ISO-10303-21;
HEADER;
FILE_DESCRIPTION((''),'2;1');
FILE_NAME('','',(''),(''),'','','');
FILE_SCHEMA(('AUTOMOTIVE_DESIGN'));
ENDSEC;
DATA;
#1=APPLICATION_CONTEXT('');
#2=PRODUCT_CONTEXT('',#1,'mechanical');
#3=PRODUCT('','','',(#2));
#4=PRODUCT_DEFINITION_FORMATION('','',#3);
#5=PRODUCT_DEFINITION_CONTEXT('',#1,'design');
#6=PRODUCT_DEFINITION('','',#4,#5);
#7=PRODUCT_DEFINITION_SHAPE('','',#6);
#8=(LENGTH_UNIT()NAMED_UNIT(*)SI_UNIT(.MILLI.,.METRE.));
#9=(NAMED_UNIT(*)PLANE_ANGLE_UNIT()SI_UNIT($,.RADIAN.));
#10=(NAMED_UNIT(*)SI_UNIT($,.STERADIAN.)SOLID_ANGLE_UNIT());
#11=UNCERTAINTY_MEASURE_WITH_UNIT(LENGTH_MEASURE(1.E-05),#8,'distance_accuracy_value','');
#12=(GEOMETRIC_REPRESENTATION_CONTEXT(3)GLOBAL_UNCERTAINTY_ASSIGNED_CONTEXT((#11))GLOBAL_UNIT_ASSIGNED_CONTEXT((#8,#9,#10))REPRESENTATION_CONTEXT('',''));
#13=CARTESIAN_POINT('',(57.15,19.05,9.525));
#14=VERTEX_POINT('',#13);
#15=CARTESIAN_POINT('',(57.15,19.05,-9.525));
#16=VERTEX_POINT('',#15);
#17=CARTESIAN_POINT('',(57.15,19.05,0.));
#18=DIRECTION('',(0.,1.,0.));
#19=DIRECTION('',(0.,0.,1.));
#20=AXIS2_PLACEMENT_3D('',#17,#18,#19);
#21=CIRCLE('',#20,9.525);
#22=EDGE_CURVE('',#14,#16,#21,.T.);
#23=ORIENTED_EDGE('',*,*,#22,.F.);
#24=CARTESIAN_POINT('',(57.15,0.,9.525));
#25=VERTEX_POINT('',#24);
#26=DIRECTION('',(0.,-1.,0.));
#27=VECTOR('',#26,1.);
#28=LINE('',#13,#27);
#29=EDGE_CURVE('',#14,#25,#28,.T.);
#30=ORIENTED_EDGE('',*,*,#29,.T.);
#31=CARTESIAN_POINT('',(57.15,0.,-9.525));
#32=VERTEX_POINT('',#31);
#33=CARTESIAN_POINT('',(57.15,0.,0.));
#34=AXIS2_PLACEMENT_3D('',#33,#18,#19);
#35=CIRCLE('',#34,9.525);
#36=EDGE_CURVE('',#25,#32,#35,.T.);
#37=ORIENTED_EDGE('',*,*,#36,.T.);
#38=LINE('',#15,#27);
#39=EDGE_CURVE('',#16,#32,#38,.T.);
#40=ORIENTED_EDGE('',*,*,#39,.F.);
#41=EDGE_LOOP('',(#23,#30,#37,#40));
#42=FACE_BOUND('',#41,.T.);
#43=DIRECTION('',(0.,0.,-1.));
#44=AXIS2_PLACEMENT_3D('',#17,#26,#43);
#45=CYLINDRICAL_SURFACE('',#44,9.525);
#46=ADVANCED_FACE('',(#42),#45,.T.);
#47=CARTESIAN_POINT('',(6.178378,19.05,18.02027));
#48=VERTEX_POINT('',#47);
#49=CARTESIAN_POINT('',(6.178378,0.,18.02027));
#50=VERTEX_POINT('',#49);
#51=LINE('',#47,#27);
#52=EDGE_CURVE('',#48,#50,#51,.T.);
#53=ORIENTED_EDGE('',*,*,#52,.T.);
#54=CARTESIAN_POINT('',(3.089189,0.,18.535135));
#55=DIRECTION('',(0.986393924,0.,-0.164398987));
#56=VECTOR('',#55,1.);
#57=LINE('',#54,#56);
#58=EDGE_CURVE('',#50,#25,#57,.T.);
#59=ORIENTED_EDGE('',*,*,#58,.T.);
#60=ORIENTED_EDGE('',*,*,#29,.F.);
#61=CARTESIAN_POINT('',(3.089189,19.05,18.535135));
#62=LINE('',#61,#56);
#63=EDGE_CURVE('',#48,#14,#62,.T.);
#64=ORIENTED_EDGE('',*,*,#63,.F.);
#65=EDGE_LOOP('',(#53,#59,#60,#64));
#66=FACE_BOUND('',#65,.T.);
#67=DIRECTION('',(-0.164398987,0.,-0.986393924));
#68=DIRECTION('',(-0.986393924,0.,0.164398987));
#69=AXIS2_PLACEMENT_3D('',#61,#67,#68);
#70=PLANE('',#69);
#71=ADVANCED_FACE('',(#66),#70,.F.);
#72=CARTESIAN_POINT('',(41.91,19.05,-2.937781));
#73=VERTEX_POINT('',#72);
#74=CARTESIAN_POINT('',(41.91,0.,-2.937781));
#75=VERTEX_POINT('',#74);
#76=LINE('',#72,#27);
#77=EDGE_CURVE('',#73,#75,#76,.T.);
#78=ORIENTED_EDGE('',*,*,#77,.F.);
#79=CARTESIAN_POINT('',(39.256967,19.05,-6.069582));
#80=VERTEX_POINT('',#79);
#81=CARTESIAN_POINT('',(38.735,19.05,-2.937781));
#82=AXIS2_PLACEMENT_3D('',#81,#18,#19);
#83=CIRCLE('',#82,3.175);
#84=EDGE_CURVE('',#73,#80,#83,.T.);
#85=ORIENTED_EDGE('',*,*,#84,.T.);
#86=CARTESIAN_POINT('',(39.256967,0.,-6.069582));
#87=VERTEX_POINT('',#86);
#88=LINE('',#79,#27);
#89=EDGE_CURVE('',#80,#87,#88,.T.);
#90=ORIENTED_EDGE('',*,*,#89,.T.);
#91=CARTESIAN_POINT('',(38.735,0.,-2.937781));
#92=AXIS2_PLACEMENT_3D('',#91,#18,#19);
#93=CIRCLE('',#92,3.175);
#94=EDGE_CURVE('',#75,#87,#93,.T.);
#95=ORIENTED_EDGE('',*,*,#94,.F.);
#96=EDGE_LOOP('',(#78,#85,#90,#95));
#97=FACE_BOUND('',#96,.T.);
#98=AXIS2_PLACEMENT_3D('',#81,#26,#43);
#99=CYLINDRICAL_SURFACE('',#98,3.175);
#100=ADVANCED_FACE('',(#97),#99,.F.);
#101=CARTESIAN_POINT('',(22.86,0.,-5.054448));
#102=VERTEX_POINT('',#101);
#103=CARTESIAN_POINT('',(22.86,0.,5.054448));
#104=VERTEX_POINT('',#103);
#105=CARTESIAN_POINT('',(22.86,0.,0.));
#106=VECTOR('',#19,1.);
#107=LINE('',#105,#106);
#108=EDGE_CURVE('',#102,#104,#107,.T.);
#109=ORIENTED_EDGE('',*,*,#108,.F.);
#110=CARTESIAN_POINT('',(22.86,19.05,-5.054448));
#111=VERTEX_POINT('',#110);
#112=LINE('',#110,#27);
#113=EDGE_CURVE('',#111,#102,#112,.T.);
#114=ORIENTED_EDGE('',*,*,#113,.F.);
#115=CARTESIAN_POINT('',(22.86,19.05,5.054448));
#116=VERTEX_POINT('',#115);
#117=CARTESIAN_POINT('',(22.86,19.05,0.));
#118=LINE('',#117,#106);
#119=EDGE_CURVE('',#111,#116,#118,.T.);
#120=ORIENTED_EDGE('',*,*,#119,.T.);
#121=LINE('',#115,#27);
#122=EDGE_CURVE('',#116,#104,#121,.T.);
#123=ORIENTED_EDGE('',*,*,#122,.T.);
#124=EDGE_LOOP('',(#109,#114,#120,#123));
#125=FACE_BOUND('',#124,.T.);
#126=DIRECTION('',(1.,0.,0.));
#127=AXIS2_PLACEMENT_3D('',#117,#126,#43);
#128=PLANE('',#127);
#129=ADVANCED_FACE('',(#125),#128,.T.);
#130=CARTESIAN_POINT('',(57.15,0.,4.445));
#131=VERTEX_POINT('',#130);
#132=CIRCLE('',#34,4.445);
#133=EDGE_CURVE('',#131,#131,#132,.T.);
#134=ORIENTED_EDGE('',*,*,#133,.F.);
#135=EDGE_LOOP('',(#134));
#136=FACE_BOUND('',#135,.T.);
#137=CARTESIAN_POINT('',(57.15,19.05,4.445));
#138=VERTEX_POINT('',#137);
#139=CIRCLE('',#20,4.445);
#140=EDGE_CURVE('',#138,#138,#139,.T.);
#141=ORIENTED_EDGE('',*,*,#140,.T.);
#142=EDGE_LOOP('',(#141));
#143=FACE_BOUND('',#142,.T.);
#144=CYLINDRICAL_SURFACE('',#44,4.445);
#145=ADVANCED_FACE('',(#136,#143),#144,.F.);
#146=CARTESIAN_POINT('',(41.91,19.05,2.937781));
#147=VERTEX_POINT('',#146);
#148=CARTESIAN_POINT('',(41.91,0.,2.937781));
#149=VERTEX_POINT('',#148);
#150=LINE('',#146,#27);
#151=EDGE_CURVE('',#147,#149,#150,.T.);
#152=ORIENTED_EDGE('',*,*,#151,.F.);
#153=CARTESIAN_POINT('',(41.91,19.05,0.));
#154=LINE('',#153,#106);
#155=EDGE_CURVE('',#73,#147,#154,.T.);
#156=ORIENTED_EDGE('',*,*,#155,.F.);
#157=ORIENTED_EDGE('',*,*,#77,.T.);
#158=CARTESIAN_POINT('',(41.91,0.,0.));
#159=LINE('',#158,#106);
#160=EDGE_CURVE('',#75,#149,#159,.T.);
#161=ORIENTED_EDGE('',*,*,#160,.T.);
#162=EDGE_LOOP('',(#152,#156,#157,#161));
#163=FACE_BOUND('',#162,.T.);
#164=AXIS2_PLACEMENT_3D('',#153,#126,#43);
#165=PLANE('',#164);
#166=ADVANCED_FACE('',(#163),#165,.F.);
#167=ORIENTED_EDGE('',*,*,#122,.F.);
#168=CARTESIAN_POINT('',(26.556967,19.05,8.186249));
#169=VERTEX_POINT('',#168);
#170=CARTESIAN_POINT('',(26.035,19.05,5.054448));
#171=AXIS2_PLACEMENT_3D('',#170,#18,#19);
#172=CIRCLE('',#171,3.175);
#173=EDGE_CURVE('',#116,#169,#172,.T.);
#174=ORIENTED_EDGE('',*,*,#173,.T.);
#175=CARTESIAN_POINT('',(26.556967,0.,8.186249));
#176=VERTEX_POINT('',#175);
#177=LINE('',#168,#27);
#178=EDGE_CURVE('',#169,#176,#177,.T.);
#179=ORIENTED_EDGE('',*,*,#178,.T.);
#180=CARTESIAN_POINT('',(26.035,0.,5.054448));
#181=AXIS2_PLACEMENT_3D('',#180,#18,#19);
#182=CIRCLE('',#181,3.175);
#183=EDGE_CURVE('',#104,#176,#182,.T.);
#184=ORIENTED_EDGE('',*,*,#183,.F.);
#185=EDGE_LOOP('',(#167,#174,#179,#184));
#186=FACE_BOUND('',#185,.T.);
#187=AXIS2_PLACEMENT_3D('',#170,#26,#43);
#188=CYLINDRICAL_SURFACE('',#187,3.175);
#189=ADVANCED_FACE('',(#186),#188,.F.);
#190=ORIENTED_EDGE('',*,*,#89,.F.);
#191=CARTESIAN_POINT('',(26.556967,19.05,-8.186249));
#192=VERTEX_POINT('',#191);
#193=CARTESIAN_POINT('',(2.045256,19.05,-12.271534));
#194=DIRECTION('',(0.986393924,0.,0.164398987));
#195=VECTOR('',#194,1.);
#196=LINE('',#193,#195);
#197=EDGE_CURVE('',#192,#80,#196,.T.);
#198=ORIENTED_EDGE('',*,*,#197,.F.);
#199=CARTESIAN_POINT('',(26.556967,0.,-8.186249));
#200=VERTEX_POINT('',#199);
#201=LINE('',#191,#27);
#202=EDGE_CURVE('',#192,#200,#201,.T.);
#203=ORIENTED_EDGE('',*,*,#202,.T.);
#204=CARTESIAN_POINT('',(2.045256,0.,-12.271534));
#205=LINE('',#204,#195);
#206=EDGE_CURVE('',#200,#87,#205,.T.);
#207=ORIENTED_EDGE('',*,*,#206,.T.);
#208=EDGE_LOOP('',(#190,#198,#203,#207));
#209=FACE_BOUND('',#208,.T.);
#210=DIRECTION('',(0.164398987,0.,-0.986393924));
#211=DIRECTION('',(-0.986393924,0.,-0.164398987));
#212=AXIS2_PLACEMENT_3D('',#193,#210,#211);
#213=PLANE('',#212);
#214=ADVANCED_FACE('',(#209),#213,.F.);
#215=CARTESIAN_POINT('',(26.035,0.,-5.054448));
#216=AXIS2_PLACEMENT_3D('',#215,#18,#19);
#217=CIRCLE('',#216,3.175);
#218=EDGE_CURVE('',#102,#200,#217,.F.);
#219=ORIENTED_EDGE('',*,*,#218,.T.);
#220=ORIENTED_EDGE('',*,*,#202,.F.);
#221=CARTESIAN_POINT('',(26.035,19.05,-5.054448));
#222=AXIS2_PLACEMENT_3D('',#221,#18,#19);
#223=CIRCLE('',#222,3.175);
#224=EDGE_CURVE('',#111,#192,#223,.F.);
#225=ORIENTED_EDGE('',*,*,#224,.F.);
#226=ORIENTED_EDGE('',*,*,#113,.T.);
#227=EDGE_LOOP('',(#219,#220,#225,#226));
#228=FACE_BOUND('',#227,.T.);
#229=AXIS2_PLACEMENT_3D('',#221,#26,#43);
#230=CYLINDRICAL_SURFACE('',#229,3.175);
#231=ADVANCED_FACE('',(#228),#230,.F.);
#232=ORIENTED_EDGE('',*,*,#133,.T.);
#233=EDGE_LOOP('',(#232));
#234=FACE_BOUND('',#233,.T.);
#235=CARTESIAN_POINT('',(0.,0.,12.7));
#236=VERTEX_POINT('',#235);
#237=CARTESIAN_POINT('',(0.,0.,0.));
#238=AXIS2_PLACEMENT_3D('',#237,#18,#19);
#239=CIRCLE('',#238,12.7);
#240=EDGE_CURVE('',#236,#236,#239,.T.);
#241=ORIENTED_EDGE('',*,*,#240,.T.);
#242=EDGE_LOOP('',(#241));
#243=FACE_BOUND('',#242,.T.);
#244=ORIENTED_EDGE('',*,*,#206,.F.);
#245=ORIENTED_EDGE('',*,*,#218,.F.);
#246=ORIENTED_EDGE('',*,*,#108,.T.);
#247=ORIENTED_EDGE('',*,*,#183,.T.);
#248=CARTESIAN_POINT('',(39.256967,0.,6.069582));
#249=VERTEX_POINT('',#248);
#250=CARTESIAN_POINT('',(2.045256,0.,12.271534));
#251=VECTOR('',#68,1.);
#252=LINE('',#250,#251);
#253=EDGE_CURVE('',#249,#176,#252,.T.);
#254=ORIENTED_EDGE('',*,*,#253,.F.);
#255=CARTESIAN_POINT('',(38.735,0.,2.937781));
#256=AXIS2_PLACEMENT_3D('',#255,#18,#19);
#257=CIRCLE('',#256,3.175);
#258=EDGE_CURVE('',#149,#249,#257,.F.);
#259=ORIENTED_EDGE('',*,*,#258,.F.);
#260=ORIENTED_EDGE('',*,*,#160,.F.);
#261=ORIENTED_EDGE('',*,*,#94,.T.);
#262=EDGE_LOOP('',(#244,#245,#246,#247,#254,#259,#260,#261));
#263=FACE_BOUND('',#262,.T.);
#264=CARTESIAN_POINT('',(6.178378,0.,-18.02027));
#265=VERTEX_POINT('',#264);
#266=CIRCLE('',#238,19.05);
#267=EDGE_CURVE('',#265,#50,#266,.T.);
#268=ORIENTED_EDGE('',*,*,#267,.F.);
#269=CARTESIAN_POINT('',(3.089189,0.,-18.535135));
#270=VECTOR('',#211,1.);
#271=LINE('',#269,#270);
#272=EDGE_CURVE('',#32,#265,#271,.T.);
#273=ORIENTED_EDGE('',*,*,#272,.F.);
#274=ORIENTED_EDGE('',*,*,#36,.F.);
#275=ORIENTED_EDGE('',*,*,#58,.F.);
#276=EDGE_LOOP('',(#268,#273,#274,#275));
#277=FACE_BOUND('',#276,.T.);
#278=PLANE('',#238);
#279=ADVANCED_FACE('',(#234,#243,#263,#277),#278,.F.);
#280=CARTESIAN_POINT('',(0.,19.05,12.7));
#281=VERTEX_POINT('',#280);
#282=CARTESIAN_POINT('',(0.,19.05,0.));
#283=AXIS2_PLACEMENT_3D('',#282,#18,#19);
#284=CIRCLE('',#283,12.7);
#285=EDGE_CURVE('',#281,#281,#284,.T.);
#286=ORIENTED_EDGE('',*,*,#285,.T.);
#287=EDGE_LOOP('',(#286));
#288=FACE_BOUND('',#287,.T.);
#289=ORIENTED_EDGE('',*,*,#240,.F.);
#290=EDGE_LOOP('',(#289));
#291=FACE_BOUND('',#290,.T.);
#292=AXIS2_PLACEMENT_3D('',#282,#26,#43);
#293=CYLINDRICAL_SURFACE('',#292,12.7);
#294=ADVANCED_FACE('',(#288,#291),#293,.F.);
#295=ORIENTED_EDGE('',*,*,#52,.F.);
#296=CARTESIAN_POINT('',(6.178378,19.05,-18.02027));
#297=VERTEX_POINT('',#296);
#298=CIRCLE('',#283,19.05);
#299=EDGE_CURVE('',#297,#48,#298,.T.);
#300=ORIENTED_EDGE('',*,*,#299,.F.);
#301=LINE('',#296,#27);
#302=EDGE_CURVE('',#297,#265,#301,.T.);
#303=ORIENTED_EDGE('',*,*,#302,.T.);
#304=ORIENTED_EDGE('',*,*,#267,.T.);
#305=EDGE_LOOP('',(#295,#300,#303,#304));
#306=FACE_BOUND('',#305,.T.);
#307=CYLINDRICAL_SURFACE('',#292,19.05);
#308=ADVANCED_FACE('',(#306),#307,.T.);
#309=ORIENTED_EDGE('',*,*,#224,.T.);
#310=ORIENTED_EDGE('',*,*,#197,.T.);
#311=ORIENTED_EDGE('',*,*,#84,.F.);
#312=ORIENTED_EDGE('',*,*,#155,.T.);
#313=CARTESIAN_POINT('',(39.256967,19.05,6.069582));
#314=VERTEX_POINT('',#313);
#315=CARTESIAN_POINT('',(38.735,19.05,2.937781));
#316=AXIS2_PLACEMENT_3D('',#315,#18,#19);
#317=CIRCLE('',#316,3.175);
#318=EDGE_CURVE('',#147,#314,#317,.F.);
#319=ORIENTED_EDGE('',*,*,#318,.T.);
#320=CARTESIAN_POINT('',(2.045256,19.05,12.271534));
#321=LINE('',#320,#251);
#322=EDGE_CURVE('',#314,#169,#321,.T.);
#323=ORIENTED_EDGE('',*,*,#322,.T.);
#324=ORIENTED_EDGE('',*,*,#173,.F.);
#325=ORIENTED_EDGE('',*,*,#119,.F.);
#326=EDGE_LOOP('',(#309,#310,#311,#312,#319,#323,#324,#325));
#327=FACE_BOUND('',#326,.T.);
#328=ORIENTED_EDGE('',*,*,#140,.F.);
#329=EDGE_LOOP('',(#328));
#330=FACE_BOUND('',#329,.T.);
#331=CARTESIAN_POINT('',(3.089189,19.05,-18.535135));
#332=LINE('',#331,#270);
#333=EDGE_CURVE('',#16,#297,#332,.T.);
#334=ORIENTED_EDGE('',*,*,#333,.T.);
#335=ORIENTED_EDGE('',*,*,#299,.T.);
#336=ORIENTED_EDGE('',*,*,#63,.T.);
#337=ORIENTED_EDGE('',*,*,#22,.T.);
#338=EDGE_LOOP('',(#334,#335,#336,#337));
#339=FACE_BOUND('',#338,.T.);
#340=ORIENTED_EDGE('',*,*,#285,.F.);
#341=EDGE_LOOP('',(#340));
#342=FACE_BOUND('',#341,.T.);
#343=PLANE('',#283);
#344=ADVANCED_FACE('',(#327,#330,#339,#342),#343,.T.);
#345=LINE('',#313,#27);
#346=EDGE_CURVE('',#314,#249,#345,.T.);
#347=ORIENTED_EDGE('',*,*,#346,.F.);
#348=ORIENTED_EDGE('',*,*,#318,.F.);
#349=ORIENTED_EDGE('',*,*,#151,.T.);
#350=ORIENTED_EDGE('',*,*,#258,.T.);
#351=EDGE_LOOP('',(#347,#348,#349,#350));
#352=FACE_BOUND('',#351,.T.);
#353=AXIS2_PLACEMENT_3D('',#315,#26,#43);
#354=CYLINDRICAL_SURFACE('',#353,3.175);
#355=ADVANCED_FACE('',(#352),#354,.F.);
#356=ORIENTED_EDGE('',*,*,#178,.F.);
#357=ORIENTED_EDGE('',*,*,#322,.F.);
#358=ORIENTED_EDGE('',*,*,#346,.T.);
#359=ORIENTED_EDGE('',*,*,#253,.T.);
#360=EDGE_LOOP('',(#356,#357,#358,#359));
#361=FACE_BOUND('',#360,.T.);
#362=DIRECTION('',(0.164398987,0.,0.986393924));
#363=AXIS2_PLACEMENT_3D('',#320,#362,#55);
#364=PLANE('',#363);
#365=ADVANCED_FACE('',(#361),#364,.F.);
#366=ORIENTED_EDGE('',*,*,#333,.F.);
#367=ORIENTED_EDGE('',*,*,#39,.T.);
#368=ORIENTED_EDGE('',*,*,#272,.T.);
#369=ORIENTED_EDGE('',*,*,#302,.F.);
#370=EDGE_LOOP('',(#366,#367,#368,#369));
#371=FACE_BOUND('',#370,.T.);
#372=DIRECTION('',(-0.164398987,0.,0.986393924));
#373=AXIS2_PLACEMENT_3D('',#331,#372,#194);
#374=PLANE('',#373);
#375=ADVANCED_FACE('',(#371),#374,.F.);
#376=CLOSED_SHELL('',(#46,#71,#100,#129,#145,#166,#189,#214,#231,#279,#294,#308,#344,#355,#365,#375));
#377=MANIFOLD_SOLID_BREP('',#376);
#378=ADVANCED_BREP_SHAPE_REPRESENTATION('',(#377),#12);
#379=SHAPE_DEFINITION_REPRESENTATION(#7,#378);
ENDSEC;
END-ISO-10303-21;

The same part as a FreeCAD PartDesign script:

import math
import FreeCAD as App
import Part
import Sketcher
Q = App.Units.Quantity

doc = App.newDocument("Part")
params = doc.addObject("Spreadsheet::Sheet", "Params")
for row, (alias, value) in enumerate([
    ("sketch1_diameter", "1 in"),
    ("sketch1_diameter2", "0.35 in"),
    ("sketch1_radius", "0.75 in"),
    ("sketch1_radius2", "0.375 in"),
    ("sketch1_radius3", "0.125 in"),
    ("pad1_length", "0.75 in"),
], start=1):
    params.set(f"A{row}", alias)
    params.set(f"B{row}", "=" + value)
    params.setAlias(f"B{row}", alias)

body = doc.addObject("PartDesign::Body", "Body")

sketch1 = body.newObject("Sketcher::SketchObject", "Sketch")
sketch1.AttachmentSupport = (doc.getObject("XZ_Plane"), [""])
sketch1.MapMode = "FlatFace"
sketch1.addGeometry([
    Part.LineSegment(App.Vector(6.2, 18, 0), App.Vector(57.1, 9.5, 0)),
    Part.ArcOfCircle(Part.Circle(App.Vector(57.1, 0, 0), App.Vector(0, 0, 1), 9.5), math.radians(-90), math.radians(90)),
    Part.LineSegment(App.Vector(57.1, -9.5, 0), App.Vector(6.2, -18, 0)),
    Part.ArcOfCircle(Part.Circle(App.Vector(0, 0, 0), App.Vector(0, 0, 1), 19.1), math.radians(71), math.radians(289)),
    Part.Circle(App.Vector(0, 0, 0), App.Vector(0, 0, 1), 12.7),
    Part.LineSegment(App.Vector(22.9, 5.1, 0), App.Vector(22.9, -5.1, 0)),
    Part.ArcOfCircle(Part.Circle(App.Vector(26, -5.1, 0), App.Vector(0, 0, 1), 3.2), math.radians(180), math.radians(279)),
    Part.LineSegment(App.Vector(26.6, -8.2, 0), App.Vector(39.3, -6.1, 0)),
    Part.ArcOfCircle(Part.Circle(App.Vector(38.7, -2.9, 0), App.Vector(0, 0, 1), 3.2), math.radians(-81), math.radians(0)),
    Part.LineSegment(App.Vector(41.9, -2.9, 0), App.Vector(41.9, 2.9, 0)),
    Part.ArcOfCircle(Part.Circle(App.Vector(38.7, 2.9, 0), App.Vector(0, 0, 1), 3.2), math.radians(0), math.radians(81)),
    Part.LineSegment(App.Vector(39.3, 6.1, 0), App.Vector(26.6, 8.2, 0)),
    Part.ArcOfCircle(Part.Circle(App.Vector(26, 5.1, 0), App.Vector(0, 0, 1), 3.2), math.radians(81), math.radians(180)),
    Part.Circle(App.Vector(57.1, 0, 0), App.Vector(0, 0, 1), 4.4),
], False)
sketch1.addConstraint([
    Sketcher.Constraint("Coincident", 0, 2, 1, 2),
    Sketcher.Constraint("Coincident", 1, 1, 2, 1),
    Sketcher.Constraint("Coincident", 2, 2, 3, 2),
    Sketcher.Constraint("Coincident", 3, 1, 0, 1),
    Sketcher.Constraint("Tangent", 5, 2, 6, 1),
    Sketcher.Constraint("Tangent", 6, 2, 7, 1),
    Sketcher.Constraint("Tangent", 7, 2, 8, 1),
    Sketcher.Constraint("Tangent", 8, 2, 9, 1),
    Sketcher.Constraint("Tangent", 9, 2, 10, 1),
    Sketcher.Constraint("Tangent", 10, 2, 11, 1),
    Sketcher.Constraint("Tangent", 11, 2, 12, 1),
    Sketcher.Constraint("Tangent", 12, 2, 5, 1),
    Sketcher.Constraint("Vertical", 5),
    Sketcher.Constraint("Vertical", 9),
    Sketcher.Constraint("Coincident", 3, 3, -1, 1),
    Sketcher.Constraint("Coincident", 4, 3, -1, 1),
    Sketcher.Constraint("Coincident", 13, 3, 1, 3),
    Sketcher.Constraint("Equal", 6, 8),
    Sketcher.Constraint("Equal", 8, 10),
    Sketcher.Constraint("Equal", 10, 12),
    Sketcher.Constraint("Symmetric", 0, 2, 1, 1, -1),
    Sketcher.Constraint("Symmetric", 7, 2, 10, 2, -1),
    Sketcher.Constraint("Parallel", 2, 7),
    Sketcher.Constraint("Parallel", 0, 11),
    Sketcher.Constraint("Vertical", 13, 3, 0, 2),
    Sketcher.Constraint("Diameter", 4, Q("1 in")),
    Sketcher.Constraint("Diameter", 13, Q("0.35 in")),
    Sketcher.Constraint("Radius", 3, Q("0.75 in")),
    Sketcher.Constraint("Radius", 1, Q("0.375 in")),
    Sketcher.Constraint("Radius", 6, Q("0.125 in")),
    Sketcher.Constraint("DistanceX", -1, 1, 5, 2, Q("0.9 in")),
    Sketcher.Constraint("DistanceX", 6, 3, 8, 3, Q("0.5 in")),
    Sketcher.Constraint("DistanceX", 8, 2, 1, 3, Q("0.6 in")),
    Sketcher.Constraint("Distance", 0, 51.674712),
    Sketcher.Constraint("DistanceY", 5, 2, 5, 1, 10.108896),
])
sketch1.setExpression("Constraints[25]", "Params.sketch1_diameter")
sketch1.setExpression("Constraints[26]", "Params.sketch1_diameter2")
sketch1.setExpression("Constraints[27]", "Params.sketch1_radius")
sketch1.setExpression("Constraints[28]", "Params.sketch1_radius2")
sketch1.setExpression("Constraints[29]", "Params.sketch1_radius3")
pad1 = body.newObject("PartDesign::Pad", "Pad")
pad1.Profile = sketch1
pad1.setExpression("Length", "Params.pad1_length")
pad1.Reversed = True

doc.recompute()
